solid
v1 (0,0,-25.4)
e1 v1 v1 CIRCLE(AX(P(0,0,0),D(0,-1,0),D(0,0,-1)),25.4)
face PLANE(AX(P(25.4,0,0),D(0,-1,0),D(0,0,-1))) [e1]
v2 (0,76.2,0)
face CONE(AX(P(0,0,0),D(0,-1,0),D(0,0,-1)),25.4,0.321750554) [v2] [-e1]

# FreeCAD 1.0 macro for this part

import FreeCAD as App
import Part
import Sketcher
from FreeCAD import Vector
Q = App.Units.Quantity


def add_polygon(sketch, points):
    """Adds a closed chain of lines whose ends are joined by coincident constraints."""
    first, n = sketch.GeometryCount, len(points)
    for a, b in zip(points, points[1:] + points[:1]):
        sketch.addGeometry(Part.LineSegment(App.Vector(*a, 0), App.Vector(*b, 0)), False)
    for i in range(n):
        sketch.addConstraint(Sketcher.Constraint("Coincident", first + i, 2, first + (i + 1) % n, 1))

doc = App.newDocument("Part")
body = doc.addObject("PartDesign::Body", "Body")

sketch1 = body.newObject("Sketcher::SketchObject", "Sketch")
sketch1.AttachmentSupport = (doc.getObject("XY_Plane"), [""])
sketch1.MapMode = "FlatFace"
add_polygon(sketch1, [(0, 76), (0, 0), (25, 0)])
sketch1.addConstraint(Sketcher.Constraint("Vertical", 0))
sketch1.addConstraint(Sketcher.Constraint("Horizontal", 1))
sketch1.addConstraint(Sketcher.Constraint("Coincident", 0, 2, -1, 1))
sketch1.addConstraint(Sketcher.Constraint("DistanceX", 1, 1, 1, 2, Q("1 in")))
sketch1.addConstraint(Sketcher.Constraint("DistanceY", 0, 2, 0, 1, Q("3 in")))
revolution = body.newObject("PartDesign::Revolution", "Revolution")
revolution.Profile = sketch1
revolution.ReferenceAxis = (sketch1, ["V_Axis"])
revolution.Angle = 360

doc.recompute()
